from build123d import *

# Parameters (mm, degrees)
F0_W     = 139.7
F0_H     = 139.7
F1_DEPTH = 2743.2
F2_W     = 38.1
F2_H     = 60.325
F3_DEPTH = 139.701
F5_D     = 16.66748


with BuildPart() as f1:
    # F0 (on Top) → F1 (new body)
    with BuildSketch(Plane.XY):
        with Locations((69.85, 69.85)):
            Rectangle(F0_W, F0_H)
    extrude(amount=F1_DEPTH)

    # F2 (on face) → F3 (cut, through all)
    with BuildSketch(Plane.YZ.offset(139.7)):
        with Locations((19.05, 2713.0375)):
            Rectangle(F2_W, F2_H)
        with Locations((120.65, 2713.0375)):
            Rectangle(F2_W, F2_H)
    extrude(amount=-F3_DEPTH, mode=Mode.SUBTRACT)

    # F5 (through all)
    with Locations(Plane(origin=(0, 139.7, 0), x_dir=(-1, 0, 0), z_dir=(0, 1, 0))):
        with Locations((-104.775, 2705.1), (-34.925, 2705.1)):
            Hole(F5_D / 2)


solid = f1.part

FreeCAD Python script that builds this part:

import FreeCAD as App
import Part
import Sketcher
Q = App.Units.Quantity

doc = App.newDocument("Part")
params = doc.addObject("Spreadsheet::Sheet", "Params")
for row, (alias, value) in enumerate([
    ("sketch1_width", "5.5 in"),
    ("pad1_length", "108 in"),
    ("sketch2_width", "1.5 in"),
    ("sketch2_height", "2.375 in"),
    ("hole_diameter", "0.6562 in"),
], start=1):
    params.set(f"A{row}", alias)
    params.set(f"B{row}", "=" + value)
    params.setAlias(f"B{row}", alias)

body = doc.addObject("PartDesign::Body", "Body")

sketch1 = doc.addObject("Sketcher::SketchObject", "Sketch")
body.addObject(sketch1)
sketch1.AttachmentSupport = (doc.XY_Plane, [""])
sketch1.MapMode = "FlatFace"
sketch1.addGeometry([
    Part.LineSegment(App.Vector(0, 140, 0), App.Vector(0, 0, 0)),
    Part.LineSegment(App.Vector(0, 0, 0), App.Vector(140, 0, 0)),
    Part.LineSegment(App.Vector(140, 0, 0), App.Vector(140, 140, 0)),
    Part.LineSegment(App.Vector(140, 140, 0), App.Vector(0, 140, 0)),
], False)
sketch1.addConstraint([
    Sketcher.Constraint("Coincident", 0, 2, 1, 1),
    Sketcher.Constraint("Coincident", 1, 2, 2, 1),
    Sketcher.Constraint("Coincident", 2, 2, 3, 1),
    Sketcher.Constraint("Coincident", 3, 2, 0, 1),
    Sketcher.Constraint("Vertical", 0),
    Sketcher.Constraint("Horizontal", 1),
    Sketcher.Constraint("Vertical", 2),
    Sketcher.Constraint("Horizontal", 3),
    Sketcher.Constraint("Coincident", 0, 2, -1, 1),
    Sketcher.Constraint("Equal", 3, 0),
    Sketcher.Constraint("DistanceX", 1, 1, 1, 2, Q("5.5 in")),
])
sketch1.setExpression("Constraints[10]", "Params.sketch1_width")
pad1 = doc.addObject("PartDesign::Pad", "Pad")
body.addObject(pad1)
pad1.Profile = sketch1
pad1.setExpression("Length", "Params.pad1_length")

sketch2 = doc.addObject("Sketcher::SketchObject", "Sketch001")
body.addObject(sketch2)
sketch2.AttachmentSupport = (doc.YZ_Plane, [""])
sketch2.MapMode = "FlatFace"
sketch2.AttachmentOffset = App.Placement(App.Vector(0, 0, 5.5 * 25.4), App.Rotation())
sketch2.addGeometry([
    Part.LineSegment(App.Vector(0, 2743, 0), App.Vector(0, 2683, 0)),
    Part.LineSegment(App.Vector(0, 2683, 0), App.Vector(38, 2683, 0)),
    Part.LineSegment(App.Vector(38, 2683, 0), App.Vector(38, 2743, 0)),
    Part.LineSegment(App.Vector(38, 2743, 0), App.Vector(0, 2743, 0)),
    Part.LineSegment(App.Vector(102, 2743, 0), App.Vector(102, 2683, 0)),
    Part.LineSegment(App.Vector(102, 2683, 0), App.Vector(140, 2683, 0)),
    Part.LineSegment(App.Vector(140, 2683, 0), App.Vector(140, 2743, 0)),
    Part.LineSegment(App.Vector(140, 2743, 0), App.Vector(102, 2743, 0)),
], False)
sketch2.addConstraint([
    Sketcher.Constraint("Coincident", 0, 2, 1, 1),
    Sketcher.Constraint("Coincident", 1, 2, 2, 1),
    Sketcher.Constraint("Coincident", 2, 2, 3, 1),
    Sketcher.Constraint("Coincident", 3, 2, 0, 1),
    Sketcher.Constraint("Coincident", 4, 2, 5, 1),
    Sketcher.Constraint("Coincident", 5, 2, 6, 1),
    Sketcher.Constraint("Coincident", 6, 2, 7, 1),
    Sketcher.Constraint("Coincident", 7, 2, 4, 1),
    Sketcher.Constraint("Vertical", 0),
    Sketcher.Constraint("Horizontal", 1),
    Sketcher.Constraint("Vertical", 2),
    Sketcher.Constraint("Horizontal", 3),
    Sketcher.Constraint("Vertical", 4),
    Sketcher.Constraint("Horizontal", 5),
    Sketcher.Constraint("Vertical", 6),
    Sketcher.Constraint("Horizontal", 7),
    Sketcher.Constraint("PointOnObject", 0, 2, -2),
    Sketcher.Constraint("Horizontal", 1, 2, 4, 2),
    Sketcher.Constraint("Horizontal", 3, 2, 6, 2),
    Sketcher.Constraint("Equal", 3, 5),
    Sketcher.Constraint("DistanceX", 1, 1, 1, 2, Q("1.5 in")),
    Sketcher.Constraint("DistanceY", -1, 1, 2, 2, Q("108 in")),
    Sketcher.Constraint("DistanceX", -1, 1, 4, 2, Q("4 in")),
    Sketcher.Constraint("DistanceY", 0, 2, 0, 1, Q("2.375 in")),
])
sketch2.setExpression("Constraints[20]", "Params.sketch2_width")
sketch2.setExpression("Constraints[23]", "Params.sketch2_height")
pocket1 = doc.addObject("PartDesign::Pocket", "Pocket")
body.addObject(pocket1)
pocket1.Profile = sketch2
pocket1.Type = "ThroughAll"

sketch3 = doc.addObject("Sketcher::SketchObject", "Sketch002")
body.addObject(sketch3)
sketch3.AttachmentSupport = (doc.XZ_Plane, [""])
sketch3.MapMode = "FlatFace"
sketch3.AttachmentOffset = App.Placement(App.Vector(0, 0, -5.5 * 25.4), App.Rotation())
sketch3.addGeometry([
    Part.Circle(App.Vector(105, 2705, 0), App.Vector(0, 0, 1), 8),
    Part.Circle(App.Vector(35, 2705, 0), App.Vector(0, 0, 1), 8),
], False)
sketch3.addConstraint([
    Sketcher.Constraint("Equal", 0, 1),
    Sketcher.Constraint("Horizontal", 0, 3, 1, 3),
    Sketcher.Constraint("Diameter", 0, Q("0.6562 in")),
    Sketcher.Constraint("DistanceY", -1, 1, 0, 3, Q("106.5 in")),
    Sketcher.Constraint("DistanceX", 1, 3, 0, 3, Q("2.75 in")),
    Sketcher.Constraint("DistanceX", -1, 1, 0, 3, Q("4.125 in")),
])
doc.recompute()
hole = doc.addObject("PartDesign::Hole", "Hole")
body.addObject(hole)
hole.Profile = sketch3
hole.ThreadType = "None"
hole.setExpression("Diameter", "Params.hole_diameter")
hole.DepthType = "ThroughAll"
hole.Reversed = True

doc.recompute()
